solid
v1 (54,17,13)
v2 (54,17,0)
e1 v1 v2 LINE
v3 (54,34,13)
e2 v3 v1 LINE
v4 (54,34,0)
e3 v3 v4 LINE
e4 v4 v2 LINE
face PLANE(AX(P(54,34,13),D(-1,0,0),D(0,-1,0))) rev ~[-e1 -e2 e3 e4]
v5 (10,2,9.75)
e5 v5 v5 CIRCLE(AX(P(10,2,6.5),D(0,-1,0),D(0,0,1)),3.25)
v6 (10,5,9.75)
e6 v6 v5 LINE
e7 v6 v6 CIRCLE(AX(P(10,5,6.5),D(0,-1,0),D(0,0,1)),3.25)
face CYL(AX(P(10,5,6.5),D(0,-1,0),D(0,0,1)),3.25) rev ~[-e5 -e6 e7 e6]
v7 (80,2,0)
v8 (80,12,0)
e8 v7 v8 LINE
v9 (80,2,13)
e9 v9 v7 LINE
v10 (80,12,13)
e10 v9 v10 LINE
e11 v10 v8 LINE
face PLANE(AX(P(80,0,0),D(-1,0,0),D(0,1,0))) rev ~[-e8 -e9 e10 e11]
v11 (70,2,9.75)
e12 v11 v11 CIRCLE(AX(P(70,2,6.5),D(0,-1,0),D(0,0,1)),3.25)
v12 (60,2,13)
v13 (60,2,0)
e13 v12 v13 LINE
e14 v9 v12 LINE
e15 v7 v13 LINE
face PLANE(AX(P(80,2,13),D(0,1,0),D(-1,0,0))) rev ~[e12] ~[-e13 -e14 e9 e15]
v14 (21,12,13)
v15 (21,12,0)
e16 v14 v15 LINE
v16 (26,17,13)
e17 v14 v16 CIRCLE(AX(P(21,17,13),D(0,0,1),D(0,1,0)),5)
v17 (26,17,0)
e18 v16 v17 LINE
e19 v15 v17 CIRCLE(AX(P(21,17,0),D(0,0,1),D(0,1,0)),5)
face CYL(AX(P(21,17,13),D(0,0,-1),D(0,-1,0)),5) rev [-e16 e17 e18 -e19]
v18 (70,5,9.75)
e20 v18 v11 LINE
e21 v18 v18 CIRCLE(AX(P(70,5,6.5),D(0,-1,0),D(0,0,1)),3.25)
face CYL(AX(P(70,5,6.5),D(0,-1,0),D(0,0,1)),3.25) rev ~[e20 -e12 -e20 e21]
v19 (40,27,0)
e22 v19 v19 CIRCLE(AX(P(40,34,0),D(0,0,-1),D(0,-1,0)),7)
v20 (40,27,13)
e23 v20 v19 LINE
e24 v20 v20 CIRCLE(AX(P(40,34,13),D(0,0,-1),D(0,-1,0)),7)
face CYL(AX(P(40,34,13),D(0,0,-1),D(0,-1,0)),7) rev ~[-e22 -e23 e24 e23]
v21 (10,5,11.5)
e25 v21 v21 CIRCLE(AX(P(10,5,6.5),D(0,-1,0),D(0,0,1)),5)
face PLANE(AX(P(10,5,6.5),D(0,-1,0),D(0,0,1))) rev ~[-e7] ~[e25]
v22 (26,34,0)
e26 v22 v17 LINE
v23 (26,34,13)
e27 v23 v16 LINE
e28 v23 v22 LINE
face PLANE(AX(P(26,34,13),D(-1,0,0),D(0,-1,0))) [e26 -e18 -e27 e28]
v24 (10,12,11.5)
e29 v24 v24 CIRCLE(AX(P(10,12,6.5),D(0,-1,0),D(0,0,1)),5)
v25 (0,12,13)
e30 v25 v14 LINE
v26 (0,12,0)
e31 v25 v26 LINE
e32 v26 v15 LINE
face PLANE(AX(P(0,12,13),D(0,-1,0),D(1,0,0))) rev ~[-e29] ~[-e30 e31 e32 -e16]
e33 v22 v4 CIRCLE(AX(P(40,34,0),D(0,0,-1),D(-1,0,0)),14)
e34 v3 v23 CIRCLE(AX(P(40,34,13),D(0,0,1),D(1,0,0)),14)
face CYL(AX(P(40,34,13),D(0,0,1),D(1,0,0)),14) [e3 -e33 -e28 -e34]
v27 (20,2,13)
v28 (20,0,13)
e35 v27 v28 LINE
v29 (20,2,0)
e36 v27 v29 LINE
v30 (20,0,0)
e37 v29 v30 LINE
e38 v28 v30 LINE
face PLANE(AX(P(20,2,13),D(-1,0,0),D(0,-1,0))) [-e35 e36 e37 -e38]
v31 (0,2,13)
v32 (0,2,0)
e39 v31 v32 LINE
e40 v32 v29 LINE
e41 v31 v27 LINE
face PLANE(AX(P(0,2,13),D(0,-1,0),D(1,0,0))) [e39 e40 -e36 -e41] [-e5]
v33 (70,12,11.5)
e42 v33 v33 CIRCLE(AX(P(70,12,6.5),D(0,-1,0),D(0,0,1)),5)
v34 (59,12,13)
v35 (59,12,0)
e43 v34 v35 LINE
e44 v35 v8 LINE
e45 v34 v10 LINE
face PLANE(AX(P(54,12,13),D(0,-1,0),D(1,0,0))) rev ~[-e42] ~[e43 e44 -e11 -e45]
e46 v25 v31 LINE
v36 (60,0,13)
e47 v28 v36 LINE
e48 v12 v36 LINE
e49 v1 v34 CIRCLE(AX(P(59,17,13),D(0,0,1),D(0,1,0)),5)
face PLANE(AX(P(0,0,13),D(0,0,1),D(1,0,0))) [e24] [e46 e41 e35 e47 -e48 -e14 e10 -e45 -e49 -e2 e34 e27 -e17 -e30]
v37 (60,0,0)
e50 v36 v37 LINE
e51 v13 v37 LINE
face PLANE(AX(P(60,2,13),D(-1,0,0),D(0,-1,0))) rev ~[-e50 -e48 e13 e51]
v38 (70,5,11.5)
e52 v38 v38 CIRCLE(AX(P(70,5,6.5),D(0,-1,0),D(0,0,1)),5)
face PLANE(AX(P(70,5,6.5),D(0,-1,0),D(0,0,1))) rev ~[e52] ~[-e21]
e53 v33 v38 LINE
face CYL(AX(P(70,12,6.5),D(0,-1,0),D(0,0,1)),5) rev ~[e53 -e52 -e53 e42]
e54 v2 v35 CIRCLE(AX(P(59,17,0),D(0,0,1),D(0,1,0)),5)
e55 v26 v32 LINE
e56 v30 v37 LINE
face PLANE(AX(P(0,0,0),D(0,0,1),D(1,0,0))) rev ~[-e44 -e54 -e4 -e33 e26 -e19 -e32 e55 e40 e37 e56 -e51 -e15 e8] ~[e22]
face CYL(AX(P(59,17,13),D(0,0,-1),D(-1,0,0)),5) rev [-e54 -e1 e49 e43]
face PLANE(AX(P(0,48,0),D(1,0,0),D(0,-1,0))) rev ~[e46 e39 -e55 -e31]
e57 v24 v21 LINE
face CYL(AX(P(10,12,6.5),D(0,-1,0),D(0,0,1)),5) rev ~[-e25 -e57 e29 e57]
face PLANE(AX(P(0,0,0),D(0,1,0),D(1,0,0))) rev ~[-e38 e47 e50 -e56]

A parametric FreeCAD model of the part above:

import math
import FreeCAD as App
import Part
import Sketcher

V = App.Vector
Q = App.Units.Quantity


def edges_at(feature, points):
    """Names of the edges that pass closest to the given points."""
    edges = feature.Shape.Edges
    near = lambda p: min(range(len(edges)), key=lambda i: edges[i].distToShape(Part.Vertex(*p))[0])
    return sorted({f"Edge{near(p) + 1}" for p in points})

doc = App.newDocument("Part")
body = doc.addObject("PartDesign::Body", "Body")

# Sketch on XY plane
sketch1 = doc.addObject("Sketcher::SketchObject", "Sketch")
body.addObject(sketch1)
sketch1.AttachmentSupport = (doc.XY_Plane, [""])
sketch1.MapMode = "FlatFace"
sketch1.addGeometry(Part.LineSegment(V(0, 48, 0), V(0, 0, 0)), False)
sketch1.addGeometry(Part.LineSegment(V(0, 0, 0), V(80, 0, 0)), False)
sketch1.addGeometry(Part.LineSegment(V(80, 0, 0), V(80, 48, 0)), False)
sketch1.addGeometry(Part.LineSegment(V(80, 48, 0), V(0, 48, 0)), False)
sketch1.addConstraint(Sketcher.Constraint("Coincident", 0, 2, 1, 1))
sketch1.addConstraint(Sketcher.Constraint("Coincident", 1, 2, 2, 1))
sketch1.addConstraint(Sketcher.Constraint("Coincident", 2, 2, 3, 1))
sketch1.addConstraint(Sketcher.Constraint("Coincident", 3, 2, 0, 1))
sketch1.addConstraint(Sketcher.Constraint("Vertical", 0))
sketch1.addConstraint(Sketcher.Constraint("Horizontal", 1))
sketch1.addConstraint(Sketcher.Constraint("Vertical", 2))
sketch1.addConstraint(Sketcher.Constraint("Horizontal", 3))
sketch1.addConstraint(Sketcher.Constraint("Coincident", 0, 2, -1, 1))
sketch1.addConstraint(Sketcher.Constraint("DistanceX", 1, 1, 1, 2, Q("80 mm")))
sketch1.addConstraint(Sketcher.Constraint("DistanceY", 0, 2, 0, 1, Q("48 mm")))
pad1 = doc.addObject("PartDesign::Pad", "Pad")
body.addObject(pad1)
pad1.Profile = sketch1
pad1.Length = 13

# Sketch on XY plane
sketch2 = doc.addObject("Sketcher::SketchObject", "Sketch001")
body.addObject(sketch2)
sketch2.AttachmentSupport = (doc.XY_Plane, [""])
sketch2.MapMode = "FlatFace"
sketch2.AttachmentOffset = App.Placement(V(0, 0, 13), App.Rotation())
sketch2.addGeometry(Part.Circle(V(40, 34, 0), V(0, 0, 1), 7), False)
sketch2.addConstraint(Sketcher.Constraint("Diameter", 0, Q("14 mm")))
sketch2.addConstraint(Sketcher.Constraint("DistanceX", -1, 1, 0, 3, Q("40 mm")))
sketch2.addConstraint(Sketcher.Constraint("DistanceY", -1, 1, 0, 3, Q("34 mm")))
doc.recompute()
hole = doc.addObject("PartDesign::Hole", "Hole")
body.addObject(hole)
hole.Profile = sketch2
hole.ThreadType = "None"
hole.Diameter = 14
hole.DepthType = "Dimension"
hole.Depth = 13
hole.DrillPoint = "Angled"
hole.DrillPointAngle = 118

# Sketch on XY plane
sketch3 = doc.addObject("Sketcher::SketchObject", "Sketch002")
body.addObject(sketch3)
sketch3.AttachmentSupport = (doc.XY_Plane, [""])
sketch3.MapMode = "FlatFace"
sketch3.AttachmentOffset = App.Placement(V(0, 0, 13), App.Rotation())
sketch3.addGeometry(Part.LineSegment(V(0, 48, 0), V(0, 12, 0)), False)
sketch3.addGeometry(Part.LineSegment(V(0, 12, 0), V(26, 12, 0)), False)
sketch3.addGeometry(Part.LineSegment(V(26, 12, 0), V(26, 34, 0)), False)
sketch3.addGeometry(Part.ArcOfCircle(Part.Circle(V(40, 34, 0), V(0, 0, 1), 14), math.radians(90), math.radians(180)), False)
sketch3.addGeometry(Part.LineSegment(V(40, 48, 0), V(0, 48, 0)), False)
sketch3.addGeometry(Part.LineSegment(V(54, 12, 0), V(80, 12, 0)), False)
sketch3.addGeometry(Part.LineSegment(V(80, 12, 0), V(80, 48, 0)), False)
sketch3.addGeometry(Part.LineSegment(V(80, 48, 0), V(40, 48, 0)), False)
sketch3.addGeometry(Part.ArcOfCircle(Part.Circle(V(40, 34, 0), V(0, 0, 1), 14), math.radians(0), math.radians(90)), False)
sketch3.addGeometry(Part.LineSegment(V(54, 34, 0), V(54, 12, 0)), False)
sketch3.addConstraint(Sketcher.Constraint("Coincident", 0, 2, 1, 1))
sketch3.addConstraint(Sketcher.Constraint("Coincident", 1, 2, 2, 1))
sketch3.addConstraint(Sketcher.Constraint("Tangent", 2, 2, 3, 2))
sketch3.addConstraint(Sketcher.Constraint("Tangent", 3, 1, 4, 1))
sketch3.addConstraint(Sketcher.Constraint("Coincident", 4, 2, 0, 1))
sketch3.addConstraint(Sketcher.Constraint("Coincident", 5, 2, 6, 1))
sketch3.addConstraint(Sketcher.Constraint("Coincident", 6, 2, 7, 1))
sketch3.addConstraint(Sketcher.Constraint("Tangent", 7, 2, 8, 2))
sketch3.addConstraint(Sketcher.Constraint("Tangent", 8, 1, 9, 1))
sketch3.addConstraint(Sketcher.Constraint("Coincident", 9, 2, 5, 1))
sketch3.addConstraint(Sketcher.Constraint("Vertical", 0))
sketch3.addConstraint(Sketcher.Constraint("Horizontal", 1))
sketch3.addConstraint(Sketcher.Constraint("Vertical", 2))
sketch3.addConstraint(Sketcher.Constraint("Horizontal", 4))
sketch3.addConstraint(Sketcher.Constraint("Horizontal", 5))
sketch3.addConstraint(Sketcher.Constraint("Vertical", 6))
sketch3.addConstraint(Sketcher.Constraint("Horizontal", 7))
sketch3.addConstraint(Sketcher.Constraint("Vertical", 9))
sketch3.addConstraint(Sketcher.Constraint("Coincident", 8, 3, 3, 3))
sketch3.addConstraint(Sketcher.Constraint("Equal", 3, 8))
sketch3.addConstraint(Sketcher.Constraint("PointOnObject", 0, 2, -2))
sketch3.addConstraint(Sketcher.Constraint("Horizontal", 1, 2, 5, 2))
sketch3.addConstraint(Sketcher.Constraint("Equal", 1, 5))
sketch3.addConstraint(Sketcher.Constraint("DistanceX", 1, 1, 1, 2, Q("26 mm")))
sketch3.addConstraint(Sketcher.Constraint("DistanceY", -1, 1, 0, 2, Q("12 mm")))
sketch3.addConstraint(Sketcher.Constraint("Radius", 3, Q("14 mm")))
sketch3.addConstraint(Sketcher.Constraint("DistanceY", 0, 2, 0, 1, Q("36 mm")))
pocket1 = doc.addObject("PartDesign::Pocket", "Pocket")
body.addObject(pocket1)
pocket1.Profile = sketch3
pocket1.Length = 13

# Sketch on XY plane
sketch4 = doc.addObject("Sketcher::SketchObject", "Sketch003")
body.addObject(sketch4)
sketch4.AttachmentSupport = (doc.XY_Plane, [""])
sketch4.MapMode = "FlatFace"
sketch4.AttachmentOffset = App.Placement(V(0, 0, 13), App.Rotation())
sketch4.addGeometry(Part.LineSegment(V(60, 2, 0), V(60, 0, 0)), False)
sketch4.addGeometry(Part.LineSegment(V(60, 0, 0), V(80, 0, 0)), False)
sketch4.addGeometry(Part.LineSegment(V(80, 0, 0), V(80, 2, 0)), False)
sketch4.addGeometry(Part.LineSegment(V(80, 2, 0), V(60, 2, 0)), False)
sketch4.addGeometry(Part.LineSegment(V(0, 2, 0), V(0, 0, 0)), False)
sketch4.addGeometry(Part.LineSegment(V(0, 0, 0), V(20, 0, 0)), False)
sketch4.addGeometry(Part.LineSegment(V(20, 0, 0), V(20, 2, 0)), False)
sketch4.addGeometry(Part.LineSegment(V(20, 2, 0), V(0, 2, 0)), False)
sketch4.addConstraint(Sketcher.Constraint("Coincident", 0, 2, 1, 1))
sketch4.addConstraint(Sketcher.Constraint("Coincident", 1, 2, 2, 1))
sketch4.addConstraint(Sketcher.Constraint("Coincident", 2, 2, 3, 1))
sketch4.addConstraint(Sketcher.Constraint("Coincident", 3, 2, 0, 1))
sketch4.addConstraint(Sketcher.Constraint("Coincident", 4, 2, 5, 1))
sketch4.addConstraint(Sketcher.Constraint("Coincident", 5, 2, 6, 1))
sketch4.addConstraint(Sketcher.Constraint("Coincident", 6, 2, 7, 1))
sketch4.addConstraint(Sketcher.Constraint("Coincident", 7, 2, 4, 1))
sketch4.addConstraint(Sketcher.Constraint("Vertical", 0))
sketch4.addConstraint(Sketcher.Constraint("Horizontal", 1))
sketch4.addConstraint(Sketcher.Constraint("Vertical", 2))
sketch4.addConstraint(Sketcher.Constraint("Horizontal", 3))
sketch4.addConstraint(Sketcher.Constraint("Vertical", 4))
sketch4.addConstraint(Sketcher.Constraint("Horizontal", 5))
sketch4.addConstraint(Sketcher.Constraint("Vertical", 6))
sketch4.addConstraint(Sketcher.Constraint("Horizontal", 7))
sketch4.addConstraint(Sketcher.Constraint("Coincident", 4, 2, -1, 1))
sketch4.addConstraint(Sketcher.Constraint("PointOnObject", 0, 2, -1))
sketch4.addConstraint(Sketcher.Constraint("Horizontal", 3, 2, 6, 2))
sketch4.addConstraint(Sketcher.Constraint("Equal", 3, 5))
sketch4.addConstraint(Sketcher.Constraint("DistanceX", 1, 1, 1, 2, Q("20 mm")))
sketch4.addConstraint(Sketcher.Constraint("DistanceY", 0, 2, 0, 1, Q("2 mm")))
sketch4.addConstraint(Sketcher.Constraint("DistanceX", -1, 1, 0, 2, Q("60 mm")))
pocket2 = doc.addObject("PartDesign::Pocket", "Pocket001")
body.addObject(pocket2)
pocket2.Profile = sketch4
pocket2.Length = 13

# Sketch on XZ plane
sketch5 = doc.addObject("Sketcher::SketchObject", "Sketch004")
body.addObject(sketch5)
sketch5.AttachmentSupport = (doc.XZ_Plane, [""])
sketch5.MapMode = "FlatFace"
sketch5.AttachmentOffset = App.Placement(V(0, 0, -12), App.Rotation())
sketch5.addGeometry(Part.Circle(V(10, 6.5, 0), V(0, 0, 1), 3.2), False)
sketch5.addGeometry(Part.Circle(V(70, 6.5, 0), V(0, 0, 1), 3.2), False)
sketch5.addConstraint(Sketcher.Constraint("Equal", 0, 1))
sketch5.addConstraint(Sketcher.Constraint("Horizontal", 0, 3, 1, 3))
sketch5.addConstraint(Sketcher.Constraint("Diameter", 0, Q("6.5 mm")))
sketch5.addConstraint(Sketcher.Constraint("DistanceX", -1, 1, 0, 3, Q("10 mm")))
sketch5.addConstraint(Sketcher.Constraint("DistanceX", -1, 1, 1, 3, Q("70 mm")))
sketch5.addConstraint(Sketcher.Constraint("DistanceY", -1, 1, 0, 3, Q("6.5 mm")))
doc.recompute()
hole2 = doc.addObject("PartDesign::Hole", "Hole001")
body.addObject(hole2)
hole2.Profile = sketch5
hole2.ThreadType = "None"
hole2.Diameter = 6.5
hole2.DepthType = "Dimension"
hole2.Depth = 10
hole2.DrillPoint = "Angled"
hole2.DrillPointAngle = 118
hole2.HoleCutType = "Counterbore"
hole2.HoleCutDiameter = 10
hole2.HoleCutDepth = 7
hole2.Reversed = True
doc.recompute()

fillet = doc.addObject("PartDesign::Fillet", "Fillet")
body.addObject(fillet)
fillet.Base = (hole2, edges_at(hole2, [(54, 12, 6.5), (26, 12, 6.5)]))
fillet.Radius = 5

doc.recompute()
